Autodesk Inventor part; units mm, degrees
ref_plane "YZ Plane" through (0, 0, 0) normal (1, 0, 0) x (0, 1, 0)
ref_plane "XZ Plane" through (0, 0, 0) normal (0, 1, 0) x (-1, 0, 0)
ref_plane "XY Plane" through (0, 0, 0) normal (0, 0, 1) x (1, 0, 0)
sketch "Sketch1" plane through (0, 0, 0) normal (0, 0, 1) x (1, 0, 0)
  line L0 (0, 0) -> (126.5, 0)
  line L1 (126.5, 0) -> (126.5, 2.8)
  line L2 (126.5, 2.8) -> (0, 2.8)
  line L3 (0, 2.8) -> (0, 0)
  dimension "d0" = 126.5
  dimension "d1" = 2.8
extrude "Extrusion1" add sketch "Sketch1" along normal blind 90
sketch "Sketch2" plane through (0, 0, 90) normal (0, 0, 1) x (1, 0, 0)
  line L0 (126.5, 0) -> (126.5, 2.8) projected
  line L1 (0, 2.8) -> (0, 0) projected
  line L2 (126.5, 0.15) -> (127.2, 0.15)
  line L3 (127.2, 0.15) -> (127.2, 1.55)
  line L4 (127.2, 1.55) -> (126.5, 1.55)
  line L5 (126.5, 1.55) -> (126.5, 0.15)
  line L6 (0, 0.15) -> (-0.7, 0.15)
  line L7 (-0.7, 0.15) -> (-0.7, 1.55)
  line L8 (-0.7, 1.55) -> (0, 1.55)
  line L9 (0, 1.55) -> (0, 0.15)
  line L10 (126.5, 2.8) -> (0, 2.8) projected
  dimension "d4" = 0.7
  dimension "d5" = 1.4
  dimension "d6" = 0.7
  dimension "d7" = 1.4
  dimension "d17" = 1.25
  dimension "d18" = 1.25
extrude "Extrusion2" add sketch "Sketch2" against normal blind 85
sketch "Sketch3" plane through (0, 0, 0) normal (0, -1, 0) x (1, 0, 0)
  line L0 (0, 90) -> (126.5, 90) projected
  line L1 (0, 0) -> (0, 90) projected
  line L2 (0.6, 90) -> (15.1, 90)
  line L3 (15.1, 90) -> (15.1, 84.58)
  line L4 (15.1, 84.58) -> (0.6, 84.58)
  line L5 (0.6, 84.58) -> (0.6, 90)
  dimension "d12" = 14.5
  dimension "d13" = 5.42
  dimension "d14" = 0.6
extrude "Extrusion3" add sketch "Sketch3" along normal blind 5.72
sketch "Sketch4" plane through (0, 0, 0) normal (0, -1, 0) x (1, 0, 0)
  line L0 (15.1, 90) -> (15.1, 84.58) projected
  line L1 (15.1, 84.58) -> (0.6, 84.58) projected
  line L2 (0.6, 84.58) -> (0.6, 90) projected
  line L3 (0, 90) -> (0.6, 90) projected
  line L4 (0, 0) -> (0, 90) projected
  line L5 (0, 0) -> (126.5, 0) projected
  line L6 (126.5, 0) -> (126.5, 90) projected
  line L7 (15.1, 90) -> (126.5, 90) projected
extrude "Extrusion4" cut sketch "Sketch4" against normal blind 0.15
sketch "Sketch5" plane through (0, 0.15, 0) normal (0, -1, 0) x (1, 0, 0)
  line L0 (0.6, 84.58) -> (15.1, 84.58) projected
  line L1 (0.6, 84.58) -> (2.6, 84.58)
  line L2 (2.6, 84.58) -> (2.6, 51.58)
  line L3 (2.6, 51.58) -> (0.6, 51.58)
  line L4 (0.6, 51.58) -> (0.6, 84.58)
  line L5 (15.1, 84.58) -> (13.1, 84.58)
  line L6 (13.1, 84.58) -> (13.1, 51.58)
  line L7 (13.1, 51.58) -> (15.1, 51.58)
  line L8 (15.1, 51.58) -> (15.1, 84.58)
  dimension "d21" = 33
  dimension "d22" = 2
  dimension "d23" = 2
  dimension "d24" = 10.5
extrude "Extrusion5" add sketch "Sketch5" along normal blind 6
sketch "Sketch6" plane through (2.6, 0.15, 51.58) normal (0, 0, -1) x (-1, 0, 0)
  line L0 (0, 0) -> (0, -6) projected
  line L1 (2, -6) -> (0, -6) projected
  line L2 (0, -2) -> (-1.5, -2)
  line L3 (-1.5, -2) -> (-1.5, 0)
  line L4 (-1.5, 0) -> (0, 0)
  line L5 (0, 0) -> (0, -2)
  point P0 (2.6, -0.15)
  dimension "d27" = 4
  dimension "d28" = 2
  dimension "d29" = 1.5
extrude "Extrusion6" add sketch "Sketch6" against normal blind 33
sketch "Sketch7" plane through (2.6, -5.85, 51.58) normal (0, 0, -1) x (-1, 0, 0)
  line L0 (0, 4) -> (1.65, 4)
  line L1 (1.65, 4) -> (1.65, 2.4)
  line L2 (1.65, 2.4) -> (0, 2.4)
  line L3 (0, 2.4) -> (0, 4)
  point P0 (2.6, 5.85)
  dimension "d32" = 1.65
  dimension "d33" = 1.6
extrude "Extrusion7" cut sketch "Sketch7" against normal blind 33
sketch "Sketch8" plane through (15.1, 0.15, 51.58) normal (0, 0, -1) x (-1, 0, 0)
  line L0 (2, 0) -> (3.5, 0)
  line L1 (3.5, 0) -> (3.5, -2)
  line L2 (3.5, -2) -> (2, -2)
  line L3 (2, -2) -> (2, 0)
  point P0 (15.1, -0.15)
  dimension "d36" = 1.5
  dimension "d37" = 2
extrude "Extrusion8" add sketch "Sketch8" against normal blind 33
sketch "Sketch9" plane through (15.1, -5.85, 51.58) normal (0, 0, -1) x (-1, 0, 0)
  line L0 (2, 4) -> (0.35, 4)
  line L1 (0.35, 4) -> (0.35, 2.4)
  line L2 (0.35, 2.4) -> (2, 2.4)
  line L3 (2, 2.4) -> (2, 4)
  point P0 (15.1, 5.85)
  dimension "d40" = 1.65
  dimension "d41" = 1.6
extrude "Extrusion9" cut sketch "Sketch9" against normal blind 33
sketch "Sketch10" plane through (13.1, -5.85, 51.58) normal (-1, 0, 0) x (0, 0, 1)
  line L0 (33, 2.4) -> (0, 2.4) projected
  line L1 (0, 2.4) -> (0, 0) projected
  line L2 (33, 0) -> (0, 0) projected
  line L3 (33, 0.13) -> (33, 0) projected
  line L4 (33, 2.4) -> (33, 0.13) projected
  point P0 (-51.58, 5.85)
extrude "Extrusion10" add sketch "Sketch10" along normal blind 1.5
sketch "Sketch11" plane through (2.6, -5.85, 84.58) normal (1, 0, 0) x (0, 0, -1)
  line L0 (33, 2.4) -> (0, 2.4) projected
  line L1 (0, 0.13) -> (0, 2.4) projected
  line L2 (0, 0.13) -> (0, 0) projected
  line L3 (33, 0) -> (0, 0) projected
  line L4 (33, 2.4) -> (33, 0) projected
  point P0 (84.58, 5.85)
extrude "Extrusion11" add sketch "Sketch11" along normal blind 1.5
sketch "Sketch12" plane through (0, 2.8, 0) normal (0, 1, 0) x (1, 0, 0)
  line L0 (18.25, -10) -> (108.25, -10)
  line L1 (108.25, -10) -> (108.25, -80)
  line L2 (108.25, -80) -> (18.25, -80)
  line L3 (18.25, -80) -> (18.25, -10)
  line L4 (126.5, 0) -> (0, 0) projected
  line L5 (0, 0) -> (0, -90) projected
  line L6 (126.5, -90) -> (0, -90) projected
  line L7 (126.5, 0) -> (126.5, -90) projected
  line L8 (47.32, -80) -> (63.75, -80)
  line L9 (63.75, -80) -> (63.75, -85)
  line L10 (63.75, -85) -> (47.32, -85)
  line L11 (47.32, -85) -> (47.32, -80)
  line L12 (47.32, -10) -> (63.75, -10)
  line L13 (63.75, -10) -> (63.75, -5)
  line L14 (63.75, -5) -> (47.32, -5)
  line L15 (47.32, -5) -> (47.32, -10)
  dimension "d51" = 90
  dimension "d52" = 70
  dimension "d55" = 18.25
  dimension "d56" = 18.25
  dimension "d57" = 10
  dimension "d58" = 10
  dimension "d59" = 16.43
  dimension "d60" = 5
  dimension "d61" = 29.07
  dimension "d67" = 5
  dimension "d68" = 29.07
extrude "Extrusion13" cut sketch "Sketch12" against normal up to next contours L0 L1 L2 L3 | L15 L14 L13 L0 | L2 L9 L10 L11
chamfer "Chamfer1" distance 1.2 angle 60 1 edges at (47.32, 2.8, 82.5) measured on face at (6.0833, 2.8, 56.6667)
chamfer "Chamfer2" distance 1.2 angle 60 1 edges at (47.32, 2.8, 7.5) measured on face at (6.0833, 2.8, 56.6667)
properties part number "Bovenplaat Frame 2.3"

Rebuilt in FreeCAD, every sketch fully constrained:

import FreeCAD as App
import Part
import Sketcher
Q = App.Units.Quantity


def edges_at(feature, points):
    """Names of the edges that pass closest to the given points."""
    edges = feature.Shape.Edges
    near = lambda p: min(range(len(edges)), key=lambda i: edges[i].distToShape(Part.Vertex(*p))[0])
    return sorted({f"Edge{near(p) + 1}" for p in points})


def add_polygon(sketch, points):
    """Adds a closed chain of lines whose ends are joined by coincident constraints."""
    first, n = sketch.GeometryCount, len(points)
    for a, b in zip(points, points[1:] + points[:1]):
        sketch.addGeometry(Part.LineSegment(App.Vector(*a, 0), App.Vector(*b, 0)), False)
    for i in range(n):
        sketch.addConstraint(Sketcher.Constraint("Coincident", first + i, 2, first + (i + 1) % n, 1))

doc = App.newDocument("Part")
body = doc.addObject("PartDesign::Body", "Body")

# Sketch on XY plane
sketch1 = body.newObject("Sketcher::SketchObject", "Sketch")
sketch1.AttachmentSupport = (doc.getObject("XY_Plane"), [""])
sketch1.MapMode = "FlatFace"
add_polygon(sketch1, [(0, 2.8), (0, 0), (126.5, 0), (126.5, 2.8)])  # lines 0-3
sketch1.addConstraint(Sketcher.Constraint("Vertical", 0))
sketch1.addConstraint(Sketcher.Constraint("Horizontal", 1))
sketch1.addConstraint(Sketcher.Constraint("Vertical", 2))
sketch1.addConstraint(Sketcher.Constraint("Horizontal", 3))
sketch1.addConstraint(Sketcher.Constraint("Coincident", 0, 2, -1, 1))
sketch1.addConstraint(Sketcher.Constraint("DistanceX", 1, 1, 1, 2, Q("126.5 mm")))
sketch1.addConstraint(Sketcher.Constraint("DistanceY", 0, 2, 0, 1, Q("2.8 mm")))
pad1 = body.newObject("PartDesign::Pad", "Pad")
pad1.Profile = sketch1
pad1.Length = 90

# Sketch on XY plane
sketch2 = body.newObject("Sketcher::SketchObject", "Sketch001")
sketch2.AttachmentSupport = (doc.getObject("XY_Plane"), [""])
sketch2.MapMode = "FlatFace"
sketch2.AttachmentOffset = App.Placement(App.Vector(0, 0, 90), App.Rotation())
add_polygon(sketch2, [(0, 0.1), (0, 1.6), (-0.7, 1.6), (-0.7, 0.1)])  # lines 0-3
add_polygon(sketch2, [(126.5, 1.6), (126.5, 0.1), (127.2, 0.1), (127.2, 1.6)])  # lines 4-7
sketch2.addConstraint(Sketcher.Constraint("Vertical", 0))
sketch2.addConstraint(Sketcher.Constraint("Horizontal", 1))
sketch2.addConstraint(Sketcher.Constraint("Vertical", 2))
sketch2.addConstraint(Sketcher.Constraint("Horizontal", 3))
sketch2.addConstraint(Sketcher.Constraint("Vertical", 4))
sketch2.addConstraint(Sketcher.Constraint("Horizontal", 5))
sketch2.addConstraint(Sketcher.Constraint("Vertical", 6))
sketch2.addConstraint(Sketcher.Constraint("Horizontal", 7))
sketch2.addConstraint(Sketcher.Constraint("PointOnObject", 0, 2, -2))
sketch2.addConstraint(Sketcher.Constraint("Horizontal", 3, 2, 4, 2))
sketch2.addConstraint(Sketcher.Constraint("Horizontal", 1, 2, 6, 2))
sketch2.addConstraint(Sketcher.Constraint("Equal", 3, 5))
sketch2.addConstraint(Sketcher.Constraint("DistanceX", 1, 2, 1, 1, Q("0.7 mm")))
sketch2.addConstraint(Sketcher.Constraint("DistanceY", 0, 1, 0, 2, Q("1.4 mm")))
sketch2.addConstraint(Sketcher.Constraint("DistanceX", -1, 1, 4, 2, Q("126.5 mm")))
sketch2.addConstraint(Sketcher.Constraint("DistanceY", -1, 1, 0, 2, Q("1.55 mm")))
pad2 = body.newObject("PartDesign::Pad", "Pad001")
pad2.Profile = sketch2
pad2.Length = 85
pad2.Reversed = True

# Sketch on XZ plane
sketch3 = body.newObject("Sketcher::SketchObject", "Sketch002")
sketch3.AttachmentSupport = (doc.getObject("XZ_Plane"), [""])
sketch3.MapMode = "FlatFace"
add_polygon(sketch3, [(15, 90), (1, 90), (1, 85), (15, 85)])  # lines 0-3
sketch3.addConstraint(Sketcher.Constraint("Horizontal", 0))
sketch3.addConstraint(Sketcher.Constraint("Vertical", 1))
sketch3.addConstraint(Sketcher.Constraint("Horizontal", 2))
sketch3.addConstraint(Sketcher.Constraint("Vertical", 3))
sketch3.addConstraint(Sketcher.Constraint("DistanceX", 0, 2, 0, 1, Q("14.5 mm")))
sketch3.addConstraint(Sketcher.Constraint("DistanceY", 1, 2, 1, 1, Q("5.42 mm")))
sketch3.addConstraint(Sketcher.Constraint("DistanceX", -1, 1, 0, 2, Q("0.6 mm")))
sketch3.addConstraint(Sketcher.Constraint("DistanceY", -1, 1, 0, 2, Q("90 mm")))
pad3 = body.newObject("PartDesign::Pad", "Pad002")
pad3.Profile = sketch3
pad3.Length = 5.72

# Sketch on XZ plane
sketch4 = body.newObject("Sketcher::SketchObject", "Sketch003")
sketch4.AttachmentSupport = (doc.getObject("XZ_Plane"), [""])
sketch4.MapMode = "FlatFace"
add_polygon(sketch4, [(126.5, 90), (15.1, 90), (15.1, 84.6), (0.6, 84.6), (0.6, 90), (0, 90), (0, 0), (126.5, 0)])  # lines 0-7
sketch4.addConstraint(Sketcher.Constraint("Horizontal", 0))
sketch4.addConstraint(Sketcher.Constraint("Vertical", 1))
sketch4.addConstraint(Sketcher.Constraint("Horizontal", 2))
sketch4.addConstraint(Sketcher.Constraint("Vertical", 3))
sketch4.addConstraint(Sketcher.Constraint("Horizontal", 4))
sketch4.addConstraint(Sketcher.Constraint("Vertical", 5))
sketch4.addConstraint(Sketcher.Constraint("Horizontal", 6))
sketch4.addConstraint(Sketcher.Constraint("Vertical", 7))
sketch4.addConstraint(Sketcher.Constraint("Coincident", 5, 2, -1, 1))
sketch4.addConstraint(Sketcher.Constraint("Horizontal", 0, 2, 3, 2))
sketch4.addConstraint(Sketcher.Constraint("DistanceY", 5, 2, 5, 1, Q("90 mm")))
sketch4.addConstraint(Sketcher.Constraint("DistanceX", 0, 2, 0, 1, Q("111.4 mm")))
sketch4.addConstraint(Sketcher.Constraint("DistanceX", 2, 2, 2, 1, Q("14.5 mm")))
sketch4.addConstraint(Sketcher.Constraint("DistanceX", 4, 2, 4, 1, Q("0.6 mm")))
sketch4.addConstraint(Sketcher.Constraint("DistanceY", 1, 2, 1, 1, Q("5.42 mm")))
pocket1 = body.newObject("PartDesign::Pocket", "Pocket")
pocket1.Profile = sketch4
pocket1.Length = 0.15

# Sketch on XZ plane
sketch5 = body.newObject("Sketcher::SketchObject", "Sketch004")
sketch5.AttachmentSupport = (doc.getObject("XZ_Plane"), [""])
sketch5.MapMode = "FlatFace"
sketch5.AttachmentOffset = App.Placement(App.Vector(0, 0, -0.15), App.Rotation())
add_polygon(sketch5, [(15.1, 84.6), (13.1, 84.6), (13.1, 51.6), (15.1, 51.6)])  # lines 0-3
add_polygon(sketch5, [(2.6, 84.6), (0.6, 84.6), (0.6, 51.6), (2.6, 51.6)])  # lines 4-7
sketch5.addConstraint(Sketcher.Constraint("Horizontal", 0))
sketch5.addConstraint(Sketcher.Constraint("Vertical", 1))
sketch5.addConstraint(Sketcher.Constraint("Horizontal", 2))
sketch5.addConstraint(Sketcher.Constraint("Vertical", 3))
sketch5.addConstraint(Sketcher.Constraint("Horizontal", 4))
sketch5.addConstraint(Sketcher.Constraint("Vertical", 5))
sketch5.addConstraint(Sketcher.Constraint("Horizontal", 6))
sketch5.addConstraint(Sketcher.Constraint("Vertical", 7))
sketch5.addConstraint(Sketcher.Constraint("Horizontal", 3, 2, 4, 2))
sketch5.addConstraint(Sketcher.Constraint("Horizontal", 2, 2, 5, 2))
sketch5.addConstraint(Sketcher.Constraint("Equal", 2, 4))
sketch5.addConstraint(Sketcher.Constraint("DistanceX", 0, 2, 0, 1, Q("2 mm")))
sketch5.addConstraint(Sketcher.Constraint("DistanceY", 1, 2, 1, 1, Q("33 mm")))
sketch5.addConstraint(Sketcher.Constraint("DistanceX", 6, 2, 1, 2, Q("10.5 mm")))
sketch5.addConstraint(Sketcher.Constraint("DistanceX", -1, 1, 0, 2, Q("13.1 mm")))
sketch5.addConstraint(Sketcher.Constraint("DistanceY", -1, 1, 0, 2, Q("84.58 mm")))
pad4 = body.newObject("PartDesign::Pad", "Pad003")
pad4.Profile = sketch5
pad4.Length = 6

# Sketch on XY plane
sketch6 = body.newObject("Sketcher::SketchObject", "Sketch005")
sketch6.AttachmentSupport = (doc.getObject("XY_Plane"), [""])
sketch6.MapMode = "FlatFace"
sketch6.AttachmentOffset = App.Placement(App.Vector(0, 0, 51.58), App.Rotation())
add_polygon(sketch6, [(2.6, -1.9), (2.6, 0.1), (4.1, 0.1), (4.1, -1.9)])  # lines 0-3
sketch6.addConstraint(Sketcher.Constraint("Vertical", 0))
sketch6.addConstraint(Sketcher.Constraint("Horizontal", 1))
sketch6.addConstraint(Sketcher.Constraint("Vertical", 2))
sketch6.addConstraint(Sketcher.Constraint("Horizontal", 3))
sketch6.addConstraint(Sketcher.Constraint("DistanceY", 0, 1, 0, 2, Q("2 mm")))
sketch6.addConstraint(Sketcher.Constraint("DistanceX", 1, 1, 1, 2, Q("1.5 mm")))
sketch6.addConstraint(Sketcher.Constraint("DistanceX", -1, 1, 0, 2, Q("2.6 mm")))
sketch6.addConstraint(Sketcher.Constraint("DistanceY", -1, 1, 0, 2, Q("0.15 mm")))
pad5 = body.newObject("PartDesign::Pad", "Pad004")
pad5.Profile = sketch6
pad5.Length = 33

# Sketch on XY plane
sketch7 = body.newObject("Sketcher::SketchObject", "Sketch006")
sketch7.AttachmentSupport = (doc.getObject("XY_Plane"), [""])
sketch7.MapMode = "FlatFace"
sketch7.AttachmentOffset = App.Placement(App.Vector(0, 0, 51.58), App.Rotation())
add_polygon(sketch7, [(0.9, -1.9), (2.6, -1.9), (2.6, -3.5), (0.9, -3.5)])  # lines 0-3
sketch7.addConstraint(Sketcher.Constraint("Horizontal", 0))
sketch7.addConstraint(Sketcher.Constraint("Vertical", 1))
sketch7.addConstraint(Sketcher.Constraint("Horizontal", 2))
sketch7.addConstraint(Sketcher.Constraint("Vertical", 3))
sketch7.addConstraint(Sketcher.Constraint("DistanceY", 1, 2, 1, 1, Q("1.6 mm")))
sketch7.addConstraint(Sketcher.Constraint("DistanceX", 0, 1, 0, 2, Q("1.65 mm")))
sketch7.addConstraint(Sketcher.Constraint("DistanceX", -1, 1, 0, 2, Q("2.6 mm")))
sketch7.addConstraint(Sketcher.Constraint("DistanceY", 0, 2, -1, 1, Q("1.85 mm")))
pocket2 = body.newObject("PartDesign::Pocket", "Pocket001")
pocket2.Profile = sketch7
pocket2.Length = 33
pocket2.Reversed = True

# Sketch on XY plane
sketch8 = body.newObject("Sketcher::SketchObject", "Sketch007")
sketch8.AttachmentSupport = (doc.getObject("XY_Plane"), [""])
sketch8.MapMode = "FlatFace"
sketch8.AttachmentOffset = App.Placement(App.Vector(0, 0, 51.58), App.Rotation())
add_polygon(sketch8, [(11.6, 0.1), (13.1, 0.1), (13.1, -1.9), (11.6, -1.9)])  # lines 0-3
sketch8.addConstraint(Sketcher.Constraint("Horizontal", 0))
sketch8.addConstraint(Sketcher.Constraint("Vertical", 1))
sketch8.addConstraint(Sketcher.Constraint("Horizontal", 2))
sketch8.addConstraint(Sketcher.Constraint("Vertical", 3))
sketch8.addConstraint(Sketcher.Constraint("DistanceY", 1, 2, 1, 1, Q("2 mm")))
sketch8.addConstraint(Sketcher.Constraint("DistanceX", 0, 1, 0, 2, Q("1.5 mm")))
sketch8.addConstraint(Sketcher.Constraint("DistanceX", -1, 1, 0, 2, Q("13.1 mm")))
sketch8.addConstraint(Sketcher.Constraint("DistanceY", -1, 1, 0, 2, Q("0.15 mm")))
pad6 = body.newObject("PartDesign::Pad", "Pad005")
pad6.Profile = sketch8
pad6.Length = 33

# Sketch on XY plane
sketch9 = body.newObject("Sketcher::SketchObject", "Sketch008")
sketch9.AttachmentSupport = (doc.getObject("XY_Plane"), [""])
sketch9.MapMode = "FlatFace"
sketch9.AttachmentOffset = App.Placement(App.Vector(0, 0, 51.58), App.Rotation())
add_polygon(sketch9, [(13.1, -3.5), (13.1, -1.9), (14.8, -1.9), (14.8, -3.5)])  # lines 0-3
sketch9.addConstraint(Sketcher.Constraint("Vertical", 0))
sketch9.addConstraint(Sketcher.Constraint("Horizontal", 1))
sketch9.addConstraint(Sketcher.Constraint("Vertical", 2))
sketch9.addConstraint(Sketcher.Constraint("Horizontal", 3))
sketch9.addConstraint(Sketcher.Constraint("DistanceY", 0, 1, 0, 2, Q("1.6 mm")))
sketch9.addConstraint(Sketcher.Constraint("DistanceX", 1, 1, 1, 2, Q("1.65 mm")))
sketch9.addConstraint(Sketcher.Constraint("DistanceX", -1, 1, 0, 2, Q("13.1 mm")))
sketch9.addConstraint(Sketcher.Constraint("DistanceY", 0, 2, -1, 1, Q("1.85 mm")))
pocket3 = body.newObject("PartDesign::Pocket", "Pocket002")
pocket3.Profile = sketch9
pocket3.Length = 33
pocket3.Reversed = True

# Sketch on YZ plane
sketch10 = body.newObject("Sketcher::SketchObject", "Sketch009")
sketch10.AttachmentSupport = (doc.getObject("YZ_Plane"), [""])
sketch10.MapMode = "FlatFace"
sketch10.AttachmentOffset = App.Placement(App.Vector(0, 0, 13.1), App.Rotation())
add_polygon(sketch10, [(-5.8, 84.6), (-3.5, 84.6), (-3.5, 51.6), (-5.8, 51.6)])  # lines 0-3
sketch10.addConstraint(Sketcher.Constraint("Horizontal", 0))
sketch10.addConstraint(Sketcher.Constraint("Vertical", 1))
sketch10.addConstraint(Sketcher.Constraint("Horizontal", 2))
sketch10.addConstraint(Sketcher.Constraint("Vertical", 3))
sketch10.addConstraint(Sketcher.Constraint("DistanceY", 1, 2, 1, 1, Q("33 mm")))
sketch10.addConstraint(Sketcher.Constraint("DistanceX", 0, 1, 0, 2, Q("2.4 mm")))
sketch10.addConstraint(Sketcher.Constraint("DistanceX", 0, 2, -1, 1, Q("3.45 mm")))
sketch10.addConstraint(Sketcher.Constraint("DistanceY", -1, 1, 0, 2, Q("84.58 mm")))
pad7 = body.newObject("PartDesign::Pad", "Pad006")
pad7.Profile = sketch10
pad7.Length = 1.5
pad7.Reversed = True

# Sketch on YZ plane
sketch11 = body.newObject("Sketcher::SketchObject", "Sketch010")
sketch11.AttachmentSupport = (doc.getObject("YZ_Plane"), [""])
sketch11.MapMode = "FlatFace"
sketch11.AttachmentOffset = App.Placement(App.Vector(0, 0, 2.6), App.Rotation())
add_polygon(sketch11, [(-5.8, 51.6), (-3.5, 51.6), (-3.5, 84.6), (-5.8, 84.6)])  # lines 0-3
sketch11.addConstraint(Sketcher.Constraint("Horizontal", 0))
sketch11.addConstraint(Sketcher.Constraint("Vertical", 1))
sketch11.addConstraint(Sketcher.Constraint("Horizontal", 2))
sketch11.addConstraint(Sketcher.Constraint("Vertical", 3))
sketch11.addConstraint(Sketcher.Constraint("DistanceY", 1, 1, 1, 2, Q("33 mm")))
sketch11.addConstraint(Sketcher.Constraint("DistanceX", 0, 1, 0, 2, Q("2.4 mm")))
sketch11.addConstraint(Sketcher.Constraint("DistanceX", 0, 2, -1, 1, Q("3.45 mm")))
sketch11.addConstraint(Sketcher.Constraint("DistanceY", -1, 1, 0, 2, Q("51.58 mm")))
pad8 = body.newObject("PartDesign::Pad", "Pad007")
pad8.Profile = sketch11
pad8.Length = 1.5

# Sketch on XZ plane
sketch12 = body.newObject("Sketcher::SketchObject", "Sketch011")
sketch12.AttachmentSupport = (doc.getObject("XZ_Plane"), [""])
sketch12.MapMode = "FlatFace"
sketch12.AttachmentOffset = App.Placement(App.Vector(0, 0, -2.8), App.Rotation())
add_polygon(sketch12, [(47, 10), (18, 10), (18, 80), (47, 80), (47, 85), (64, 85), (64, 80), (108, 80), (108, 10), (64, 10), (64, 5), (47, 5)])  # lines 0-11
sketch12.addConstraint(Sketcher.Constraint("Horizontal", 0))
sketch12.addConstraint(Sketcher.Constraint("Vertical", 1))
sketch12.addConstraint(Sketcher.Constraint("Horizontal", 2))
sketch12.addConstraint(Sketcher.Constraint("Vertical", 3))
sketch12.addConstraint(Sketcher.Constraint("Horizontal", 4))
sketch12.addConstraint(Sketcher.Constraint("Vertical", 5))
sketch12.addConstraint(Sketcher.Constraint("Horizontal", 6))
sketch12.addConstraint(Sketcher.Constraint("Vertical", 7))
sketch12.addConstraint(Sketcher.Constraint("Horizontal", 8))
sketch12.addConstraint(Sketcher.Constraint("Vertical", 9))
sketch12.addConstraint(Sketcher.Constraint("Horizontal", 10))
sketch12.addConstraint(Sketcher.Constraint("Vertical", 11))
sketch12.addConstraint(Sketcher.Constraint("Horizontal", 2, 2, 5, 2))
sketch12.addConstraint(Sketcher.Constraint("Horizontal", 0, 2, 7, 2))
sketch12.addConstraint(Sketcher.Constraint("Vertical", 5, 2, 8, 2))
sketch12.addConstraint(Sketcher.Constraint("Vertical", 3, 2, 10, 2))
sketch12.addConstraint(Sketcher.Constraint("Equal", 5, 9))
sketch12.addConstraint(Sketcher.Constraint("DistanceY", 1, 1, 1, 2, Q("70 mm")))
sketch12.addConstraint(Sketcher.Constraint("DistanceY", 3, 1, 3, 2, Q("5 mm")))
sketch12.addConstraint(Sketcher.Constraint("DistanceY", -1, 1, 0, 2, Q("10 mm")))
sketch12.addConstraint(Sketcher.Constraint("DistanceX", 1, 2, 6, 2, Q("90 mm")))
sketch12.addConstraint(Sketcher.Constraint("DistanceX", 0, 2, 0, 1, Q("29.07 mm")))
sketch12.addConstraint(Sketcher.Constraint("DistanceX", 4, 1, 4, 2, Q("16.43 mm")))
sketch12.addConstraint(Sketcher.Constraint("DistanceX", -1, 1, 0, 2, Q("18.25 mm")))
pocket4 = body.newObject("PartDesign::Pocket", "Pocket003")
pocket4.Profile = sketch12
pocket4.Type = "UpToFirst"
pocket4.Reversed = True
doc.recompute()

chamfer = body.newObject("PartDesign::Chamfer", "Chamfer")
chamfer.Base = (pocket4, edges_at(pocket4, [(47.32, 2.8, 82.5)]))
chamfer.ChamferType = "Distance and Angle"
chamfer.Size = 1.2
chamfer.Angle = 60
doc.recompute()

chamfer2 = body.newObject("PartDesign::Chamfer", "Chamfer001")
chamfer2.Base = (chamfer, edges_at(chamfer, [(47.32, 2.8, 7.5)]))
chamfer2.ChamferType = "Distance and Angle"
chamfer2.Size = 1.2
chamfer2.Angle = 60

doc.recompute()
